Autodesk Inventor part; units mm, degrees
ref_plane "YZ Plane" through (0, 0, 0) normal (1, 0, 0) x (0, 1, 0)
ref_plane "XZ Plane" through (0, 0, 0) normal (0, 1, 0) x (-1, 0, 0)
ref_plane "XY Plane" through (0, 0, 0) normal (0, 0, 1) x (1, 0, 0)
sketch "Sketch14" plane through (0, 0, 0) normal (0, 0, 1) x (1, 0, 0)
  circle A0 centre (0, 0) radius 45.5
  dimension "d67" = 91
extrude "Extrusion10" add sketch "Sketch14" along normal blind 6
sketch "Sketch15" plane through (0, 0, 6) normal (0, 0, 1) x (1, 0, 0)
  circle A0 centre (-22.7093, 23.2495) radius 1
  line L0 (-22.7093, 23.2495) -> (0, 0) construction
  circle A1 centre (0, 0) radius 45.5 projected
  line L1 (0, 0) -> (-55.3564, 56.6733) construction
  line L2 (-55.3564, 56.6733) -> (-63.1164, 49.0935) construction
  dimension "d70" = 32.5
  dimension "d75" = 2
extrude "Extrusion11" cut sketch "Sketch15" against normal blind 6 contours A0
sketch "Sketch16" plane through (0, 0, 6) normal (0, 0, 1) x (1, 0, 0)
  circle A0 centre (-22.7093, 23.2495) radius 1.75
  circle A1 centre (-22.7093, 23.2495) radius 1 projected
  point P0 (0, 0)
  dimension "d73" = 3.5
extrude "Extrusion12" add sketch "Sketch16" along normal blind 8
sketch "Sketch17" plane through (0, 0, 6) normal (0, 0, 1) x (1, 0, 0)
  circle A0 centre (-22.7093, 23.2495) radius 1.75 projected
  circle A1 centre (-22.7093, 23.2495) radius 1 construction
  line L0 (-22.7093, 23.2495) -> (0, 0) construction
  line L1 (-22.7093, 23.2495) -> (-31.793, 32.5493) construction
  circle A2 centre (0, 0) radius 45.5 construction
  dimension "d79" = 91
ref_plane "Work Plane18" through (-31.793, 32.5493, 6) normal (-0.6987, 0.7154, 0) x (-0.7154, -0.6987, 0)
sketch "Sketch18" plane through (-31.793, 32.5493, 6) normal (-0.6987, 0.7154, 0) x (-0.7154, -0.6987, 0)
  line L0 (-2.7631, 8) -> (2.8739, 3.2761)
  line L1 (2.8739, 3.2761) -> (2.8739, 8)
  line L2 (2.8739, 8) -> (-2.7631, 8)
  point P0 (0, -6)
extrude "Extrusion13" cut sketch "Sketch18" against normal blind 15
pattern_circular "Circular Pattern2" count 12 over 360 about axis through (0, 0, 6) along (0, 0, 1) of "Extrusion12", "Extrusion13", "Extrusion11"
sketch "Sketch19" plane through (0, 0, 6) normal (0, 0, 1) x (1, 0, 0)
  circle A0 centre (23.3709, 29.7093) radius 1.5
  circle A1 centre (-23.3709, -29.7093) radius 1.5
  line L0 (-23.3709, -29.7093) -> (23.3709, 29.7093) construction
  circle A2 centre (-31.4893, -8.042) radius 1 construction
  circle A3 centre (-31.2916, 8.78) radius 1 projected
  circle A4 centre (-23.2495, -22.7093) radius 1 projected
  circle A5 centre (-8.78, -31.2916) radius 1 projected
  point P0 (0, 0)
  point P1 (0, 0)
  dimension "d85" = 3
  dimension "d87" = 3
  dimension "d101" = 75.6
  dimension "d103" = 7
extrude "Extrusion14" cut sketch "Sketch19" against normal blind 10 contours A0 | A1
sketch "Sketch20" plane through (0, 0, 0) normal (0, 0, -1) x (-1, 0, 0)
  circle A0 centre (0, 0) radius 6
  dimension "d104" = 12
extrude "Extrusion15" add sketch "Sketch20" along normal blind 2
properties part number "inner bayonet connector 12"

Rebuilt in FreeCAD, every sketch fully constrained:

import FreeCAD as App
import Part
import Sketcher
Q = App.Units.Quantity


def add_polygon(sketch, points):
    """Adds a closed chain of lines whose ends are joined by coincident constraints."""
    first, n = sketch.GeometryCount, len(points)
    for a, b in zip(points, points[1:] + points[:1]):
        sketch.addGeometry(Part.LineSegment(App.Vector(*a, 0), App.Vector(*b, 0)), False)
    for i in range(n):
        sketch.addConstraint(Sketcher.Constraint("Coincident", first + i, 2, first + (i + 1) % n, 1))

doc = App.newDocument("Part")
params = doc.addObject("Spreadsheet::Sheet", "Params")
for row, (alias, value) in enumerate([
    ("sketch1_diameter", "91 mm"),
    ("pad1_length", "6 mm"),
    ("sketch2_diameter", "2 mm"),
    ("pocket1_length", "6 mm"),
    ("sketch3_diameter", "3.5 mm"),
    ("sketch3_diameter2", "2 mm"),
    ("pad2_length", "8 mm"),
    ("pocket2_length", "15 mm"),
    ("sketch5_diameter", "3 mm"),
    ("pocket3_length", "10 mm"),
    ("sketch6_diameter", "12 mm"),
    ("pad3_length", "2 mm"),
], start=1):
    params.set(f"A{row}", alias)
    params.set(f"B{row}", "=" + value)
    params.setAlias(f"B{row}", alias)

body = doc.addObject("PartDesign::Body", "Body")

# Sketch on XY plane
sketch1 = doc.addObject("Sketcher::SketchObject", "Sketch")
body.addObject(sketch1)
sketch1.AttachmentSupport = (doc.XY_Plane, [""])
sketch1.MapMode = "FlatFace"
sketch1.addGeometry(Part.Circle(App.Vector(0, 0, 0), App.Vector(0, 0, 1), 46), False)
sketch1.addConstraint(Sketcher.Constraint("Coincident", 0, 3, -1, 1))
sketch1.addConstraint(Sketcher.Constraint("Diameter", 0, Q("91 mm")))
sketch1.setExpression("Constraints[1]", "Params.sketch1_diameter")
pad1 = doc.addObject("PartDesign::Pad", "Pad")
body.addObject(pad1)
pad1.Profile = sketch1
pad1.setExpression("Length", "Params.pad1_length")

# Sketch on XY plane
sketch2 = doc.addObject("Sketcher::SketchObject", "Sketch001")
body.addObject(sketch2)
sketch2.AttachmentSupport = (doc.XY_Plane, [""])
sketch2.MapMode = "FlatFace"
sketch2.AttachmentOffset = App.Placement(App.Vector(0, 0, 6), App.Rotation())
sketch2.addGeometry(Part.Circle(App.Vector(-22.7, 23.2, 0), App.Vector(0, 0, 1), 1), False)
sketch2.addConstraint(Sketcher.Constraint("Diameter", 0, Q("2 mm")))
sketch2.addConstraint(Sketcher.Constraint("DistanceX", 0, 3, -1, 1, Q("22.7093 mm")))
sketch2.addConstraint(Sketcher.Constraint("DistanceY", -1, 1, 0, 3, Q("23.2495 mm")))
sketch2.setExpression("Constraints[0]", "Params.sketch2_diameter")
pocket1 = doc.addObject("PartDesign::Pocket", "Pocket")
body.addObject(pocket1)
pocket1.Profile = sketch2
pocket1.setExpression("Length", "Params.pocket1_length")

# Sketch on XY plane
sketch3 = doc.addObject("Sketcher::SketchObject", "Sketch002")
body.addObject(sketch3)
sketch3.AttachmentSupport = (doc.XY_Plane, [""])
sketch3.MapMode = "FlatFace"
sketch3.AttachmentOffset = App.Placement(App.Vector(0, 0, 6), App.Rotation())
sketch3.addGeometry(Part.Circle(App.Vector(-22.7, 23.2, 0), App.Vector(0, 0, 1), 1.8), False)
sketch3.addGeometry(Part.Circle(App.Vector(-22.7, 23.2, 0), App.Vector(0, 0, 1), 1), False)
sketch3.addConstraint(Sketcher.Constraint("Coincident", 1, 3, 0, 3))
sketch3.addConstraint(Sketcher.Constraint("Diameter", 0, Q("3.5 mm")))
sketch3.addConstraint(Sketcher.Constraint("Diameter", 1, Q("2 mm")))
sketch3.addConstraint(Sketcher.Constraint("DistanceX", 0, 3, -1, 1, Q("22.7093 mm")))
sketch3.addConstraint(Sketcher.Constraint("DistanceY", -1, 1, 0, 3, Q("23.2495 mm")))
sketch3.setExpression("Constraints[1]", "Params.sketch3_diameter")
sketch3.setExpression("Constraints[2]", "Params.sketch3_diameter2")
pad2 = doc.addObject("PartDesign::Pad", "Pad001")
body.addObject(pad2)
pad2.Profile = sketch3
pad2.setExpression("Length", "Params.pad2_length")

# Sketch on an angled plane
sketch4 = doc.addObject("Sketcher::SketchObject", "Sketch003")
body.addObject(sketch4)
sketch4.Placement = App.Placement(App.Vector(-31.793, 32.5493, 6), App.Rotation(App.Vector(-0.715407565, -0.698707389, 0), App.Vector(0, 0, 1), App.Vector(-0.698707389, 0.715407565, 0), "ZXY"))
add_polygon(sketch4, [(2.9, 8), (-2.8, 8), (2.9, 3.3)])  # lines 0-2
sketch4.addConstraint(Sketcher.Constraint("Horizontal", 0))
sketch4.addConstraint(Sketcher.Constraint("Vertical", 2))
sketch4.addConstraint(Sketcher.Constraint("DistanceY", -1, 1, 0, 2, Q("8 mm")))
sketch4.addConstraint(Sketcher.Constraint("DistanceX", 0, 2, 0, 1, Q("5.637 mm")))
sketch4.addConstraint(Sketcher.Constraint("DistanceY", 2, 1, 2, 2, Q("4.724 mm")))
sketch4.addConstraint(Sketcher.Constraint("DistanceX", 0, 2, -1, 1, Q("2.763 mm")))
pocket2 = doc.addObject("PartDesign::Pocket", "Pocket001")
body.addObject(pocket2)
pocket2.Profile = sketch4
pocket2.setExpression("Length", "Params.pocket2_length")
doc.recompute()

polarpattern = doc.addObject("PartDesign::PolarPattern", "PolarPattern")
body.addObject(polarpattern)
polarpattern.Originals = [pad2, pocket2, pocket1]
polarpattern.Axis = (doc.Z_Axis, [""])
polarpattern.Angle = 360
polarpattern.Occurrences = 12
body.Tip = polarpattern

# Sketch on XY plane
sketch5 = doc.addObject("Sketcher::SketchObject", "Sketch004")
body.addObject(sketch5)
sketch5.AttachmentSupport = (doc.XY_Plane, [""])
sketch5.MapMode = "FlatFace"
sketch5.AttachmentOffset = App.Placement(App.Vector(0, 0, 6), App.Rotation())
sketch5.addGeometry(Part.Circle(App.Vector(23.4, 29.7, 0), App.Vector(0, 0, 1), 1.5), False)
sketch5.addGeometry(Part.Circle(App.Vector(-23.4, -29.7, 0), App.Vector(0, 0, 1), 1.5), False)
sketch5.addConstraint(Sketcher.Constraint("Equal", 0, 1))
sketch5.addConstraint(Sketcher.Constraint("Symmetric", 0, 3, 1, 3, -1, 1))
sketch5.addConstraint(Sketcher.Constraint("Diameter", 0, Q("3 mm")))
sketch5.addConstraint(Sketcher.Constraint("DistanceX", -1, 1, 0, 3, Q("23.371 mm")))
sketch5.addConstraint(Sketcher.Constraint("DistanceY", -1, 1, 0, 3, Q("29.7093 mm")))
sketch5.setExpression("Constraints[2]", "Params.sketch5_diameter")
pocket3 = doc.addObject("PartDesign::Pocket", "Pocket002")
body.addObject(pocket3)
pocket3.Profile = sketch5
pocket3.setExpression("Length", "Params.pocket3_length")

# Sketch on XY plane
sketch6 = doc.addObject("Sketcher::SketchObject", "Sketch005")
body.addObject(sketch6)
sketch6.AttachmentSupport = (doc.XY_Plane, [""])
sketch6.MapMode = "FlatFace"
sketch6.addGeometry(Part.Circle(App.Vector(0, 0, 0), App.Vector(0, 0, 1), 6), False)
sketch6.addConstraint(Sketcher.Constraint("Coincident", 0, 3, -1, 1))
sketch6.addConstraint(Sketcher.Constraint("Diameter", 0, Q("12 mm")))
sketch6.setExpression("Constraints[1]", "Params.sketch6_diameter")
pad3 = doc.addObject("PartDesign::Pad", "Pad002")
body.addObject(pad3)
pad3.Profile = sketch6
pad3.setExpression("Length", "Params.pad3_length")
pad3.Reversed = True

doc.recompute()
